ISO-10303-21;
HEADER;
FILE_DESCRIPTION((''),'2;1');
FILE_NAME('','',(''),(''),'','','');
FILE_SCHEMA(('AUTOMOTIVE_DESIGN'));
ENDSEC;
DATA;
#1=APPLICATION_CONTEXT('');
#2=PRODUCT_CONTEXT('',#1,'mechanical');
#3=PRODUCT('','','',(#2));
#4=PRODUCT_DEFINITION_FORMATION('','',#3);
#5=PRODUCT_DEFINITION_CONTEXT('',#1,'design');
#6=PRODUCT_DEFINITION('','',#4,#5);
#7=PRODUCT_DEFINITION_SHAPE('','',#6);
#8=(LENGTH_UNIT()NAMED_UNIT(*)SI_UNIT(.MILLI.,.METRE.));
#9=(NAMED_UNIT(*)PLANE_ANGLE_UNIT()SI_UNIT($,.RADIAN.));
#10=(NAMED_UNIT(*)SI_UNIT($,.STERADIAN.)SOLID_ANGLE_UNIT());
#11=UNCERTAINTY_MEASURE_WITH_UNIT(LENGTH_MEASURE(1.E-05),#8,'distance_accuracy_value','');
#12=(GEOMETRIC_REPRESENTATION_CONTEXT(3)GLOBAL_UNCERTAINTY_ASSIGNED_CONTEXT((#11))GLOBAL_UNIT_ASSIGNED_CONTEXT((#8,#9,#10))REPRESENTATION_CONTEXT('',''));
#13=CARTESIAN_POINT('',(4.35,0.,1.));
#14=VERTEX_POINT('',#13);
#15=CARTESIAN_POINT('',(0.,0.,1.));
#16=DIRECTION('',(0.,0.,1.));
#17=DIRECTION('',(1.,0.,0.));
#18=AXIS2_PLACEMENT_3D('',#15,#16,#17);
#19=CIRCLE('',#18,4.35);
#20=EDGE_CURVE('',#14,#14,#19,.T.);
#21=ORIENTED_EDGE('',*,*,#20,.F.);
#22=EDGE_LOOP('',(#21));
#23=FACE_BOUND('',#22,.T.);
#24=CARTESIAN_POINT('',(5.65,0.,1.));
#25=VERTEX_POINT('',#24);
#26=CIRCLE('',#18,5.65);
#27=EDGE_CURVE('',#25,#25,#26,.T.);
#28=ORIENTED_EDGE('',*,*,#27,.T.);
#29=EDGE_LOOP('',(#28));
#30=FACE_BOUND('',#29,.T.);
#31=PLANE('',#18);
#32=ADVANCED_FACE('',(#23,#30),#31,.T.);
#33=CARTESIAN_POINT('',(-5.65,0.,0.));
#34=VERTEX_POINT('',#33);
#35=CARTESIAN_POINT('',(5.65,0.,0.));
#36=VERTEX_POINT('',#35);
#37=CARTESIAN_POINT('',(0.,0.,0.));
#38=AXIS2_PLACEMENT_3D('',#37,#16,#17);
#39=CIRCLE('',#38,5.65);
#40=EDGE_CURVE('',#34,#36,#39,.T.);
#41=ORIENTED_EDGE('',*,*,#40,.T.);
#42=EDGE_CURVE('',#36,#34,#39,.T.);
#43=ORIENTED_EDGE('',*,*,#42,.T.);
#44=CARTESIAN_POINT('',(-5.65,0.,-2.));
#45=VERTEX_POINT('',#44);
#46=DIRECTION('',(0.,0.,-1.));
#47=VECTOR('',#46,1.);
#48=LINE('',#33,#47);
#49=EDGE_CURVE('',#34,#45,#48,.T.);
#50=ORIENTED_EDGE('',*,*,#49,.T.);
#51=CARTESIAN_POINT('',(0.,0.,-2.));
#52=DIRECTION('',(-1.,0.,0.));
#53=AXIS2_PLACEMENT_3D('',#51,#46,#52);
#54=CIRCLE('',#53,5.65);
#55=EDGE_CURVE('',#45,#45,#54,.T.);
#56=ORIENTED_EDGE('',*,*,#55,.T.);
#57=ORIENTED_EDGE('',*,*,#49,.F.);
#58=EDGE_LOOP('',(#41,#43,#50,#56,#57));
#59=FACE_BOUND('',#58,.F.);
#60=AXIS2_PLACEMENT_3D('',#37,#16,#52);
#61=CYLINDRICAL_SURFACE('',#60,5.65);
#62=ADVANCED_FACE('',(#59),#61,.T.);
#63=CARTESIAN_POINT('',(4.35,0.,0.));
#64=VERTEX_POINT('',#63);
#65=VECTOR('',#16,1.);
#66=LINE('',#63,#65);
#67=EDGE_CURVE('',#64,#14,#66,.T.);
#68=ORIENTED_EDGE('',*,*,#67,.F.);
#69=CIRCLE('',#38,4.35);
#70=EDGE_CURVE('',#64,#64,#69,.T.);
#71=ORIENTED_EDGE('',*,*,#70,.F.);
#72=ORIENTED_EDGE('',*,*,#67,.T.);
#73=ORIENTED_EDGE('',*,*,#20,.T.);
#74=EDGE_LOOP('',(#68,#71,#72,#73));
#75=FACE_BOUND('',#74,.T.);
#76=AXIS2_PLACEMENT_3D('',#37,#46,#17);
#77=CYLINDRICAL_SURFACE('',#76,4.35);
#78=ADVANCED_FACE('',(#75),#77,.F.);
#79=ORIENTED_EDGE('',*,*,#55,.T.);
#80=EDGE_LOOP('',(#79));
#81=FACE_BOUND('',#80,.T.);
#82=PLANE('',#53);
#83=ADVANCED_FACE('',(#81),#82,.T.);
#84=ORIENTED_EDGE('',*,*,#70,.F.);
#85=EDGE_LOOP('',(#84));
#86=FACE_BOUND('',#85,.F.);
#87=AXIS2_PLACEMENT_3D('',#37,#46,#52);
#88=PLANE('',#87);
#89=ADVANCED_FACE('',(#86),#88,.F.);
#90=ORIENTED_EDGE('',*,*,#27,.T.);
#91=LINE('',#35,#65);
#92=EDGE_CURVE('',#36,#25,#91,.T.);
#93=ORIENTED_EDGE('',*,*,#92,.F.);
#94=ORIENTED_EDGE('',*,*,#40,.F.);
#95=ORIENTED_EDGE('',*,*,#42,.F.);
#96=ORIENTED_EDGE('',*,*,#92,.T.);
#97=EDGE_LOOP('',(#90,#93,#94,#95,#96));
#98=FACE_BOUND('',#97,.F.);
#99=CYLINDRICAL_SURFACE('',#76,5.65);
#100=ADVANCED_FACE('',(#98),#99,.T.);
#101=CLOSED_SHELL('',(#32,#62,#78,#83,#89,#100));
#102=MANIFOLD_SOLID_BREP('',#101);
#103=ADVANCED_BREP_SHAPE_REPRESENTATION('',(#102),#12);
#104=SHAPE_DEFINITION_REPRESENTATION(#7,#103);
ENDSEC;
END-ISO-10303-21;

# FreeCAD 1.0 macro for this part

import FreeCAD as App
import Part
import Sketcher

doc = App.newDocument("Part")
body = doc.addObject("PartDesign::Body", "Body")

# Sketch on XY plane
sketch1 = body.newObject("Sketcher::SketchObject", "Sketch")
sketch1.AttachmentSupport = (doc.getObject("XY_Plane"), [""])
sketch1.MapMode = "FlatFace"
sketch1.addGeometry(Part.Circle(App.Vector(0, 0, 0), App.Vector(0, 0, 1), 5.7), False)
sketch1.addGeometry(Part.Circle(App.Vector(0, 0, 0), App.Vector(0, 0, 1), 4.3), False)
sketch1.addConstraint(Sketcher.Constraint("Coincident", 0, 3, -1, 1))
sketch1.addConstraint(Sketcher.Constraint("Coincident", 1, 3, -1, 1))
sketch1.addConstraint(Sketcher.Constraint("Diameter", 1, 8.7))
sketch1.addConstraint(Sketcher.Constraint("Diameter", 0, 11.3))
pad1 = body.newObject("PartDesign::Pad", "Pad")
pad1.Profile = sketch1
pad1.Length = 1

# Sketch on XY plane
sketch2 = body.newObject("Sketcher::SketchObject", "Sketch001")
sketch2.AttachmentSupport = (doc.getObject("XY_Plane"), [""])
sketch2.MapMode = "FlatFace"
sketch2.addGeometry(Part.Circle(App.Vector(0, 0, 0), App.Vector(0, 0, 1), 6), False)
sketch2.addConstraint(Sketcher.Constraint("Coincident", 0, 3, -1, 1))
sketch2.addConstraint(Sketcher.Constraint("Diameter", 0, 11.3))
pad2 = body.newObject("PartDesign::Pad", "Pad001")
pad2.Profile = sketch2
pad2.Length = 2
pad2.Reversed = True

doc.recompute()
